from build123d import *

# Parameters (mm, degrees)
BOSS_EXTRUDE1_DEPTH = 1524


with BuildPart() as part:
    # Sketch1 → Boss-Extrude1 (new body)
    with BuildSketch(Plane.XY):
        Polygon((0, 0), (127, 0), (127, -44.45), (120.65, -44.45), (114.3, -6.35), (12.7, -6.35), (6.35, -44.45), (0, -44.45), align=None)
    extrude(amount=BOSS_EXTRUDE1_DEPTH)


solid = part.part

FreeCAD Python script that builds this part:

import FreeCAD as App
import Part
import Sketcher
Q = App.Units.Quantity

doc = App.newDocument("Part")
params = doc.addObject("Spreadsheet::Sheet", "Params")
for row, (alias, value) in enumerate([
    ("sketch1_width", "5 in"),
    ("sketch1_width2", "4 in"),
    ("sketch1_width3", "0.25 in"),
    ("sketch1_height", "1.75 in"),
    ("pad1_length", "60 in"),
], start=1):
    params.set(f"A{row}", alias)
    params.set(f"B{row}", "=" + value)
    params.setAlias(f"B{row}", alias)

body = doc.addObject("PartDesign::Body", "Body")

# Sketch on XY plane
sketch1 = body.newObject("Sketcher::SketchObject", "Sketch")
sketch1.AttachmentSupport = (doc.getObject("XY_Plane"), [""])
sketch1.MapMode = "FlatFace"
sketch1.addGeometry([
    Part.LineSegment(App.Vector(127, 0, 0), App.Vector(0, 0, 0)),  # 0
    Part.LineSegment(App.Vector(0, 0, 0), App.Vector(0, -44.45, 0)),  # 1
    Part.LineSegment(App.Vector(0, -44.45, 0), App.Vector(6.35, -44.45, 0)),  # 2
    Part.LineSegment(App.Vector(6.35, -44.45, 0), App.Vector(12.7, -6.35, 0)),  # 3
    Part.LineSegment(App.Vector(12.7, -6.35, 0), App.Vector(114.3, -6.35, 0)),  # 4
    Part.LineSegment(App.Vector(114.3, -6.35, 0), App.Vector(120.65, -44.45, 0)),  # 5
    Part.LineSegment(App.Vector(120.65, -44.45, 0), App.Vector(127, -44.45, 0)),  # 6
    Part.LineSegment(App.Vector(127, -44.45, 0), App.Vector(127, 0, 0)),  # 7
], False)
sketch1.addConstraint([
    Sketcher.Constraint("Coincident", 0, 2, 1, 1),
    Sketcher.Constraint("Coincident", 1, 2, 2, 1),
    Sketcher.Constraint("Coincident", 2, 2, 3, 1),
    Sketcher.Constraint("Coincident", 3, 2, 4, 1),
    Sketcher.Constraint("Coincident", 4, 2, 5, 1),
    Sketcher.Constraint("Coincident", 5, 2, 6, 1),
    Sketcher.Constraint("Coincident", 6, 2, 7, 1),
    Sketcher.Constraint("Coincident", 7, 2, 0, 1),
    Sketcher.Constraint("Horizontal", 0),
    Sketcher.Constraint("Vertical", 1),
    Sketcher.Constraint("Horizontal", 2),
    Sketcher.Constraint("Horizontal", 4),
    Sketcher.Constraint("Horizontal", 6),
    Sketcher.Constraint("Vertical", 7),
    Sketcher.Constraint("Coincident", 0, 2, -1, 1),
    Sketcher.Constraint("Horizontal", 2, 2, 5, 2),
    Sketcher.Constraint("Equal", 2, 6),
    Sketcher.Constraint("Equal", 3, 5),
    Sketcher.Constraint("DistanceX", 0, 2, 0, 1, Q("5 in")),
    Sketcher.Constraint("DistanceX", 4, 1, 4, 2, Q("4 in")),
    Sketcher.Constraint("DistanceX", 2, 1, 2, 2, Q("0.25 in")),
    Sketcher.Constraint("DistanceY", 1, 2, 1, 1, Q("1.75 in")),
    Sketcher.Constraint("DistanceY", 2, 2, 3, 2, Q("1.5 in")),
])
sketch1.setExpression("Constraints[18]", "Params.sketch1_width")
sketch1.setExpression("Constraints[19]", "Params.sketch1_width2")
sketch1.setExpression("Constraints[20]", "Params.sketch1_width3")
sketch1.setExpression("Constraints[21]", "Params.sketch1_height")
pad1 = body.newObject("PartDesign::Pad", "Pad")
pad1.Profile = sketch1
pad1.setExpression("Length", "Params.pad1_length")

doc.recompute()
